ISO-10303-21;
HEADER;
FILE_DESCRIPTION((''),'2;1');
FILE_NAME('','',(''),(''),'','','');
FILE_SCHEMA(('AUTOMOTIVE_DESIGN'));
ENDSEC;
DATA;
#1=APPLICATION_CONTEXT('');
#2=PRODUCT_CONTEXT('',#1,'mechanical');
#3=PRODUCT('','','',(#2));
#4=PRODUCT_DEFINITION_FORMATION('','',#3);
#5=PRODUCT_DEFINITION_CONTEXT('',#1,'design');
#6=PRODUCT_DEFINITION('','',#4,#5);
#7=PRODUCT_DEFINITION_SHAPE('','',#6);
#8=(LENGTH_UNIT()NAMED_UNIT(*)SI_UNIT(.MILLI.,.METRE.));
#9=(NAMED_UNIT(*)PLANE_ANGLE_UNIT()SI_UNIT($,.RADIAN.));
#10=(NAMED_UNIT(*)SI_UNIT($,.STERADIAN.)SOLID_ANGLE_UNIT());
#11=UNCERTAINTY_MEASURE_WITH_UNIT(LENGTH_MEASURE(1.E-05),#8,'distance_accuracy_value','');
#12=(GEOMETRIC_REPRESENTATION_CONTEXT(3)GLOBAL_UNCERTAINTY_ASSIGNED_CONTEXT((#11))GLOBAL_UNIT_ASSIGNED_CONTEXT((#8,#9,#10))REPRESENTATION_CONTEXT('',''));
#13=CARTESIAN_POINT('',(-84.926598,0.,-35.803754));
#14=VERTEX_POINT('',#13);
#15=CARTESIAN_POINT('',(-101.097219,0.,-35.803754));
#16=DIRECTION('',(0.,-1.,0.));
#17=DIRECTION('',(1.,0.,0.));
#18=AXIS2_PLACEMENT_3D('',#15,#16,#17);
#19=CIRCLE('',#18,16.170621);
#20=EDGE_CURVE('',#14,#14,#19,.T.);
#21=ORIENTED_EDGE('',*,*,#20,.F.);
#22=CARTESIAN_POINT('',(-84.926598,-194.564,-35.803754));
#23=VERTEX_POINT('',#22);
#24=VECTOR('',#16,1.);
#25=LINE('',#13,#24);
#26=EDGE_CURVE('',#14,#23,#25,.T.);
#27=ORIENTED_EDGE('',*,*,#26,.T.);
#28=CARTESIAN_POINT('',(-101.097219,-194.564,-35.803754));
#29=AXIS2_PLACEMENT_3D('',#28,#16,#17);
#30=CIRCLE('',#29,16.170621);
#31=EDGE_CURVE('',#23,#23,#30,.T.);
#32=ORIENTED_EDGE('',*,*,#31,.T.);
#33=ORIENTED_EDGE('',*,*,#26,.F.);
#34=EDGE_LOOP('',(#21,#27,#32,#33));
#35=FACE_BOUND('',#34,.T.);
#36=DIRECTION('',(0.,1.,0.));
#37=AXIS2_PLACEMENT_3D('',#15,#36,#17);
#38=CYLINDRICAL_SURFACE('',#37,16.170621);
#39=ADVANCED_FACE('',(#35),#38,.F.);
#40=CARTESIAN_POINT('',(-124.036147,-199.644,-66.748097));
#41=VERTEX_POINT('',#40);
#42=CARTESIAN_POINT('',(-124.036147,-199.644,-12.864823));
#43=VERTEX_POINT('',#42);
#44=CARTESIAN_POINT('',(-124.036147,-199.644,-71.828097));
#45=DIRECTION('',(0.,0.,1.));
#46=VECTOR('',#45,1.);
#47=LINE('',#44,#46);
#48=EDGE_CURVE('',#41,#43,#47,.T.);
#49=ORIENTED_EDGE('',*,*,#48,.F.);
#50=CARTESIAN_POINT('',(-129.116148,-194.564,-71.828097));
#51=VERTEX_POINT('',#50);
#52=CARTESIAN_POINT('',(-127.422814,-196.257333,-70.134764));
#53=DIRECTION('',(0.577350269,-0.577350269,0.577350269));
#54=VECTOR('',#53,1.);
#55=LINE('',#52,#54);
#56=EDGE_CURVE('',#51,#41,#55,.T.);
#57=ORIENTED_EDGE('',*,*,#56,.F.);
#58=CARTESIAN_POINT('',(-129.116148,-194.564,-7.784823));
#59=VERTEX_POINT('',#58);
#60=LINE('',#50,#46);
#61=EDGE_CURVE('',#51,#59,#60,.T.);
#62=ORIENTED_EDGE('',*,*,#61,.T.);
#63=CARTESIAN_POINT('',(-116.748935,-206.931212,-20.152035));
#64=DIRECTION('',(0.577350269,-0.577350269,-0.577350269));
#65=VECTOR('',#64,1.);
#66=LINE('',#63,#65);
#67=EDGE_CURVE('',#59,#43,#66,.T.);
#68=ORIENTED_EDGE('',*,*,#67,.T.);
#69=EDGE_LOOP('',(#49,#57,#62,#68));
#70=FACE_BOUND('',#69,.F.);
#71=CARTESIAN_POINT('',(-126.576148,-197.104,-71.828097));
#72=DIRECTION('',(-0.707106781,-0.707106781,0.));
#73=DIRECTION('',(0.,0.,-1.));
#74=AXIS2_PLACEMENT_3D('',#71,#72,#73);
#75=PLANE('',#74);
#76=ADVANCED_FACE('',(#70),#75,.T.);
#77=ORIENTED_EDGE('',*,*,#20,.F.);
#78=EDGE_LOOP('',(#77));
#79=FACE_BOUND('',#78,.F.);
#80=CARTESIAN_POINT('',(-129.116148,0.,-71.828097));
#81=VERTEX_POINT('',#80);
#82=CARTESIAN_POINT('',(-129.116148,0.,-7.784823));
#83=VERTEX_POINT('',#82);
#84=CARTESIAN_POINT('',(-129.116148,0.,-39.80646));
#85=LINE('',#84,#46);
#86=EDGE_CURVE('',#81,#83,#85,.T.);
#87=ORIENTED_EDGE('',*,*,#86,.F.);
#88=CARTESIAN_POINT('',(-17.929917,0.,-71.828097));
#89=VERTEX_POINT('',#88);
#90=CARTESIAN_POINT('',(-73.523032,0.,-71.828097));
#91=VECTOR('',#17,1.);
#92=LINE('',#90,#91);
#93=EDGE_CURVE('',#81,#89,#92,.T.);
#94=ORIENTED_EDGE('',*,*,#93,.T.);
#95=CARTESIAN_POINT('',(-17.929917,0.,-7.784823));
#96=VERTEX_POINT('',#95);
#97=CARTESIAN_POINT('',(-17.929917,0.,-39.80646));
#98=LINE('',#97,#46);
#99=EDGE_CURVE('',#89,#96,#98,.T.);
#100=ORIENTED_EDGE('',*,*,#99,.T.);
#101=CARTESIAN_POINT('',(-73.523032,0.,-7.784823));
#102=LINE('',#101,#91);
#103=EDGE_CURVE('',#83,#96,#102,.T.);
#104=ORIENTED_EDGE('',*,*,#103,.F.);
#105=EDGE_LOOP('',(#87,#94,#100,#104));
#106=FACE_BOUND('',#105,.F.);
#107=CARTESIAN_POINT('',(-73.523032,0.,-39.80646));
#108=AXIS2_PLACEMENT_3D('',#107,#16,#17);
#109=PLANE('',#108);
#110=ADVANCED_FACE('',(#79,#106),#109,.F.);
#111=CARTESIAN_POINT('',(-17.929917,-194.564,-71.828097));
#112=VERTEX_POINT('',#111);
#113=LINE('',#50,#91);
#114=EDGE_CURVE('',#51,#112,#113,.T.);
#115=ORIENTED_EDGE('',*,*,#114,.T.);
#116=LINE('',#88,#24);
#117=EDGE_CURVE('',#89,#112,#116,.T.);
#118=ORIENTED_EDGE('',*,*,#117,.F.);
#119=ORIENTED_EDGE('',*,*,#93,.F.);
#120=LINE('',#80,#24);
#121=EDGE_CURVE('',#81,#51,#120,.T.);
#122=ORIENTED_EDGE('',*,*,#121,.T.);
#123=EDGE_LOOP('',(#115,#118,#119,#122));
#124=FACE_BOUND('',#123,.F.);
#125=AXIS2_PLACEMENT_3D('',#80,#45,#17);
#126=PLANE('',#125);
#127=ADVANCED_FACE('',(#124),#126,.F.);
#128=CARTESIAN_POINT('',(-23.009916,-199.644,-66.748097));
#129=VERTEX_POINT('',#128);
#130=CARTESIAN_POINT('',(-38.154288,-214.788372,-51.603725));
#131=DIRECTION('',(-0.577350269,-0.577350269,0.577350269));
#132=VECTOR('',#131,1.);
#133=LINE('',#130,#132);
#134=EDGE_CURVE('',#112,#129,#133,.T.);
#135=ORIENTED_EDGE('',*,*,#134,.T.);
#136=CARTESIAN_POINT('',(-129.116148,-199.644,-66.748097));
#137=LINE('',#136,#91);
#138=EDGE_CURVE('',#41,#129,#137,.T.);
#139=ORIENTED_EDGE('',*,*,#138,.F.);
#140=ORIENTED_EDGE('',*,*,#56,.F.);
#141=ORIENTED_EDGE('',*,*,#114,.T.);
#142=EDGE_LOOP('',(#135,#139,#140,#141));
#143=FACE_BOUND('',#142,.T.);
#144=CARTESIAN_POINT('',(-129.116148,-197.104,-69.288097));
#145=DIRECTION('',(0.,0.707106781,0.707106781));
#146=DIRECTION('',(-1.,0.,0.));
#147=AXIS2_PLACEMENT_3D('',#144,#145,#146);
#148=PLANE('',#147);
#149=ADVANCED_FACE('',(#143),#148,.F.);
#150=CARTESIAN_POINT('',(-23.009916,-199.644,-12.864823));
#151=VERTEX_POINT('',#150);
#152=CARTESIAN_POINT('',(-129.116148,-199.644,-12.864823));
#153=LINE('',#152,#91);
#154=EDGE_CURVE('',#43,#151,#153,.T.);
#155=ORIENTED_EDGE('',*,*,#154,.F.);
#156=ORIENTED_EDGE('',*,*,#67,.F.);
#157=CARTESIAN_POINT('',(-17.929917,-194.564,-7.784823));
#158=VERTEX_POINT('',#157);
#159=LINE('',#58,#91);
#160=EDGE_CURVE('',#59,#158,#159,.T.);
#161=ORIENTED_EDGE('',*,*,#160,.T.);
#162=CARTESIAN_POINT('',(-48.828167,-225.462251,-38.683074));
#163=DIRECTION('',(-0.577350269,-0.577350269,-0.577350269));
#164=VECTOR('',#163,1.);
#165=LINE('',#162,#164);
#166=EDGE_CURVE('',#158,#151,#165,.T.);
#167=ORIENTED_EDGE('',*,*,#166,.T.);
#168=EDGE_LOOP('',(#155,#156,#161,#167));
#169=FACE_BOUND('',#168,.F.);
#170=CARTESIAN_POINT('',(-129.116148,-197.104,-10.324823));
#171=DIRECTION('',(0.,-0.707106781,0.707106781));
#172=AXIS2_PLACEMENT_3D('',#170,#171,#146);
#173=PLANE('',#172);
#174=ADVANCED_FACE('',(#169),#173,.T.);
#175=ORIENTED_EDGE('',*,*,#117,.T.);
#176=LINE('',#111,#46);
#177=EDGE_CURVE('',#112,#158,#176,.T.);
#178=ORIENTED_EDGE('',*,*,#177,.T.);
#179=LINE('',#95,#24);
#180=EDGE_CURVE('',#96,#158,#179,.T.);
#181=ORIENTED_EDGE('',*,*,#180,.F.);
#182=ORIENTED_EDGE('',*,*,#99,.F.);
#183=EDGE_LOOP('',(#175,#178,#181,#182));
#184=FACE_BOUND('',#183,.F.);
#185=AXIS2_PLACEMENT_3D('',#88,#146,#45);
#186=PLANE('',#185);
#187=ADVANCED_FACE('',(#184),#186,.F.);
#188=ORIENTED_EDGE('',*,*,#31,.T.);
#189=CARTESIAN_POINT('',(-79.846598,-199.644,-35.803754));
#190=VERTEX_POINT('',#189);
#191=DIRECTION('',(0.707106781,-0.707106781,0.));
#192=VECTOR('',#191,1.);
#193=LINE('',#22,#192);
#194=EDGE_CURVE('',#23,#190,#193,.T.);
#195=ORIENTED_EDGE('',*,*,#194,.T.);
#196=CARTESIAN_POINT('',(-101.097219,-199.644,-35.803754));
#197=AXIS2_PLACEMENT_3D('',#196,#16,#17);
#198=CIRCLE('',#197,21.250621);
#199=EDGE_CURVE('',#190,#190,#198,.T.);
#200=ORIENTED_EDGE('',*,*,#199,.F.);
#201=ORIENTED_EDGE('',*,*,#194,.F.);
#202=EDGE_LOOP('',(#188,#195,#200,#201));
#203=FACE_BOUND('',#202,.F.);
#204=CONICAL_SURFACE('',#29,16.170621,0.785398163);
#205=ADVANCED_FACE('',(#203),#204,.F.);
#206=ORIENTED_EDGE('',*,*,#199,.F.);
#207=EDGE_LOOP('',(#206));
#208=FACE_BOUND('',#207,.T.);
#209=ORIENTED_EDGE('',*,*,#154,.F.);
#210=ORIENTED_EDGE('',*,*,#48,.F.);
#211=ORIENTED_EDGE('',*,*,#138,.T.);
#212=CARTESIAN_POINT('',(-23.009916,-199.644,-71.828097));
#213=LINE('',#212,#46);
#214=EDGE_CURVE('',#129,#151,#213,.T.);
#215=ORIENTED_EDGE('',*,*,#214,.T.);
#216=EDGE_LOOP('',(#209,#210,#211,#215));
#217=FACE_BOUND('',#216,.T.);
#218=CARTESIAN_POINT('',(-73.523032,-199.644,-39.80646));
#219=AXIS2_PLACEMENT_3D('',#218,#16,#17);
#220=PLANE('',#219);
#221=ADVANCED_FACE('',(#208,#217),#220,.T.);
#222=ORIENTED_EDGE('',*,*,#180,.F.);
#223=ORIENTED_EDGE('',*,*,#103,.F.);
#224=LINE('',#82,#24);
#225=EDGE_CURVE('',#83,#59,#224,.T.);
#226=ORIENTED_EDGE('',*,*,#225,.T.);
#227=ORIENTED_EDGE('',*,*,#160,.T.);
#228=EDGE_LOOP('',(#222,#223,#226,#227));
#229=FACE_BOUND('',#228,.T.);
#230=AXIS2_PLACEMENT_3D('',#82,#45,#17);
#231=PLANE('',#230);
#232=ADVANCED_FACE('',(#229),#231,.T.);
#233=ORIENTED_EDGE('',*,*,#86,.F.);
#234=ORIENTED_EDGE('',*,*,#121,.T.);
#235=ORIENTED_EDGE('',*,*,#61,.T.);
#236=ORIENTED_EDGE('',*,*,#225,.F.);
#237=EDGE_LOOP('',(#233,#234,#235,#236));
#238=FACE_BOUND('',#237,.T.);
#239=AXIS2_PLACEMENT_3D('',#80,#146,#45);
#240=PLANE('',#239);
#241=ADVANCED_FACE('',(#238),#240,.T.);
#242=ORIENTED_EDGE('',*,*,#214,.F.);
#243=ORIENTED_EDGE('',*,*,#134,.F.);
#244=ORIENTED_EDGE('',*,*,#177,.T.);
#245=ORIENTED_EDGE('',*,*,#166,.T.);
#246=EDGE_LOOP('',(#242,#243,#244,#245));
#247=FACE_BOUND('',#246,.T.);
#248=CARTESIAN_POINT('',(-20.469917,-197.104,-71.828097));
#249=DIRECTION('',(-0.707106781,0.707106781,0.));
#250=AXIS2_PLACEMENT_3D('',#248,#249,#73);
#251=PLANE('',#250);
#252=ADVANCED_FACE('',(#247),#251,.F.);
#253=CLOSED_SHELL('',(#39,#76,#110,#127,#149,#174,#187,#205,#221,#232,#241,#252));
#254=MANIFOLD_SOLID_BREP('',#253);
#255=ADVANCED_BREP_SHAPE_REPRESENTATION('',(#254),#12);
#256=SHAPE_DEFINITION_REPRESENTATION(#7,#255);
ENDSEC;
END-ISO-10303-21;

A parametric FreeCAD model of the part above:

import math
import FreeCAD as App
import Part
import Sketcher
from FreeCAD import Vector
Q = App.Units.Quantity


def edges_at(feature, points):
    """Names of the edges that pass closest to the given points."""
    edges = feature.Shape.Edges
    near = lambda p: min(range(len(edges)), key=lambda i: edges[i].distToShape(Part.Vertex(*p))[0])
    return sorted({f"Edge{near(p) + 1}" for p in points})


def add_polygon(sketch, points):
    """Adds a closed chain of lines whose ends are joined by coincident constraints."""
    first, n = sketch.GeometryCount, len(points)
    for a, b in zip(points, points[1:] + points[:1]):
        sketch.addGeometry(Part.LineSegment(App.Vector(*a, 0), App.Vector(*b, 0)), False)
    for i in range(n):
        sketch.addConstraint(Sketcher.Constraint("Coincident", first + i, 2, first + (i + 1) % n, 1))

doc = App.newDocument("Part")
body = doc.addObject("PartDesign::Body", "Body")

sketch1 = body.newObject("Sketcher::SketchObject", "Sketch")
sketch1.AttachmentSupport = (doc.getObject("XZ_Plane"), [""])
sketch1.MapMode = "FlatFace"
add_polygon(sketch1, [(-129, -8), (-129, -72), (-18, -72), (-18, -8)])
sketch1.addGeometry(Part.Circle(Vector(-101, -36, 0), Vector(0, 0, 1), 16), False)
sketch1.addConstraint([
    Sketcher.Constraint("Vertical", 0),
    Sketcher.Constraint("Horizontal", 1),
    Sketcher.Constraint("Vertical", 2),
    Sketcher.Constraint("Horizontal", 3),
    Sketcher.Constraint("Diameter", 4, 32.341242),
    Sketcher.Constraint("DistanceX", 1, 1, 1, 2, 111.186231),
    Sketcher.Constraint("DistanceY", 0, 2, 0, 1, 64.043274),
    Sketcher.Constraint("DistanceX", 4, 3, -1, 1, 101.097219),
    Sketcher.Constraint("DistanceX", 0, 2, 4, 3, 28.018929),
    Sketcher.Constraint("DistanceY", 4, 3, 2, 2, 28.018931),
    Sketcher.Constraint("DistanceY", 4, 3, -1, 1, 35.803754),
])
pad1 = body.newObject("PartDesign::Pad", "Pad")
pad1.Profile = sketch1
pad1.Length = Q("7.86 in")
doc.recompute()

chamfer = body.newObject("PartDesign::Chamfer", "Chamfer")
chamfer.Base = (pad1, edges_at(pad1, [
    (-73.523, -199.644, -7.785),
    (-129.116, -199.644, -39.806),
    (-73.523, -199.644, -71.828),
    (-17.93, -199.644, -39.806),
    (-117.268, -199.644, -35.804),
]))
chamfer.Size = Q("0.2 in")

sketch2 = body.newObject("Sketcher::SketchObject", "Sketch001")
sketch2.AttachmentSupport = (doc.getObject("XZ_Plane"), [""])
sketch2.MapMode = "FlatFace"
sketch2.AttachmentOffset = App.Placement(Vector(0, 0, 7.86 * 25.4), App.Rotation())
add_polygon(sketch2, [(-124.04, -12.86), (-124.04, -66.75), (-23.01, -66.75), (-23.01, -12.86)])
sketch2.addGeometry(Part.ArcOfCircle(Part.Circle(Vector(-53.38, -48.07, 0), Vector(0, 0, 1), 12.13), math.radians(144), math.radians(216)), False)
sketch2.addGeometry(Part.LineSegment(Vector(-63.24, -41, 0), Vector(-63.24, -55.14, 0)), False)
sketch2.addGeometry(Part.ArcOfCircle(Part.Circle(Vector(-53.38, -48.07, 0), Vector(0, 0, 1), 12.14), math.radians(-144.36), math.radians(-140.98)), False)
sketch2.addGeometry(Part.LineSegment(Vector(-62.81, -55.71, 0), Vector(-63.24, -55.71, 0)), False)
sketch2.addGeometry(Part.LineSegment(Vector(-63.24, -55.71, 0), Vector(-63.24, -55.14, 0)), False)
sketch2.addGeometry(Part.LineSegment(Vector(-62.81, -55.71, 0), Vector(-43.95, -55.71, 0)), False)
sketch2.addGeometry(Part.ArcOfCircle(Part.Circle(Vector(-53.38, -48.07, 0), Vector(0, 0, 1), 12.13), math.radians(-141), math.radians(-39)), False)
sketch2.addGeometry(Part.Circle(Vector(-101.1, -35.8, 0), Vector(0, 0, 1), 21.25), False)
sketch2.addConstraint([
    Sketcher.Constraint("Coincident", 4, 1, 5, 1),
    Sketcher.Constraint("Coincident", 5, 2, 4, 2),
    Sketcher.Constraint("Coincident", 6, 2, 7, 1),
    Sketcher.Constraint("Coincident", 7, 2, 8, 1),
    Sketcher.Constraint("Coincident", 8, 2, 6, 1),
    Sketcher.Constraint("Coincident", 9, 1, 10, 1),
    Sketcher.Constraint("Coincident", 10, 2, 9, 2),
    Sketcher.Constraint("Vertical", 0),
    Sketcher.Constraint("Horizontal", 1),
    Sketcher.Constraint("Vertical", 2),
    Sketcher.Constraint("Horizontal", 3),
    Sketcher.Constraint("Vertical", 5),
    Sketcher.Constraint("Horizontal", 7),
    Sketcher.Constraint("Vertical", 8),
    Sketcher.Constraint("Horizontal", 9),
    Sketcher.Constraint("Coincident", 10, 3, 4, 3),
    Sketcher.Constraint("Coincident", 8, 2, 5, 2),
    Sketcher.Constraint("Coincident", 9, 1, 6, 2),
    Sketcher.Constraint("Equal", 4, 10),
    Sketcher.Constraint("Diameter", 11, 42.501242),
    Sketcher.Constraint("Radius", 4, 12.134769),
    Sketcher.Constraint("Radius", 6, 12.135611),
    Sketcher.Constraint("DistanceX", 1, 1, 1, 2, 101.026231),
    Sketcher.Constraint("DistanceX", 7, 2, 7, 1, 0.433031),
    Sketcher.Constraint("DistanceX", 9, 1, 9, 2, 18.856891),
    Sketcher.Constraint("DistanceX", 4, 3, -1, 1, 53.377099),
    Sketcher.Constraint("DistanceY", 0, 2, 0, 1, 53.883274),
    Sketcher.Constraint("DistanceY", 6, 3, -1, 1, 48.066771),
    Sketcher.Constraint("DistanceX", 11, 3, -1, 1, 101.097219),
    Sketcher.Constraint("DistanceY", 10, 3, 11, 3, 12.26353),
    Sketcher.Constraint("DistanceX", 0, 2, 11, 3, 22.938929),
    Sketcher.Constraint("DistanceY", 6, 3, 2, 2, 35.201948),
])
pad2 = body.newObject("PartDesign::Pad", "Pad001")
pad2.Profile = sketch2
pad2.Length = Q("5 in")
pad2.Reversed = True

doc.recompute()
